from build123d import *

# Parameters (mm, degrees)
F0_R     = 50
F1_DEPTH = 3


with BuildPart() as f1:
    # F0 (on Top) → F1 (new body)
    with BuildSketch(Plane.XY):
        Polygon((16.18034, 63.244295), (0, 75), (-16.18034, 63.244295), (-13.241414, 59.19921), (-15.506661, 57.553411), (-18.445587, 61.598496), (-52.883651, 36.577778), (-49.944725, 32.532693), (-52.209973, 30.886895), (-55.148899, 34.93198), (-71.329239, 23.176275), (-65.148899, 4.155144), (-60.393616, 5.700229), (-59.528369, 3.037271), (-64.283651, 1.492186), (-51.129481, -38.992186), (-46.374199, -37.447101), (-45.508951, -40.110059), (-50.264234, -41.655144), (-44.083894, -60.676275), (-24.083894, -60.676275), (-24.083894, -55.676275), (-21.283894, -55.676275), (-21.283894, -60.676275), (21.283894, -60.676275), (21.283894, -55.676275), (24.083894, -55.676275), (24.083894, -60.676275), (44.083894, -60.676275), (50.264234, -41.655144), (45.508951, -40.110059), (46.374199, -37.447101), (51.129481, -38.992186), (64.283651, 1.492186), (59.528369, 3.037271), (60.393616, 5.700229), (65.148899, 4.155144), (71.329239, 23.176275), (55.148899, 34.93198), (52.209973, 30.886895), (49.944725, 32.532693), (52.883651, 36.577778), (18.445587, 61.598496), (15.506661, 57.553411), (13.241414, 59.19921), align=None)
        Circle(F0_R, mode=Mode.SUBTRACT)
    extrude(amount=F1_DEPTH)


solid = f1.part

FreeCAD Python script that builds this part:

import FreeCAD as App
import Part
import Sketcher

V = App.Vector
Q = App.Units.Quantity


def add_polygon(sketch, points):
    """Adds a closed chain of lines whose ends are joined by coincident constraints."""
    first, n = sketch.GeometryCount, len(points)
    for a, b in zip(points, points[1:] + points[:1]):
        sketch.addGeometry(Part.LineSegment(App.Vector(*a, 0), App.Vector(*b, 0)), False)
    for i in range(n):
        sketch.addConstraint(Sketcher.Constraint("Coincident", first + i, 2, first + (i + 1) % n, 1))

doc = App.newDocument("Part")
body = doc.addObject("PartDesign::Body", "Body")

sketch1 = body.newObject("Sketcher::SketchObject", "Sketch")
sketch1.AttachmentSupport = (doc.getObject("XY_Plane"), [""])
sketch1.MapMode = "FlatFace"
add_polygon(sketch1, [(16.18034, 63.244295), (0, 75), (-16.18034, 63.244295), (-13.241414, 59.19921), (-15.506661, 57.553411), (-18.445587, 61.598496), (-52.883651, 36.577778), (-49.944725, 32.532693), (-52.209973, 30.886895), (-55.148899, 34.93198), (-71.329239, 23.176275), (-65.148899, 4.155144), (-60.393616, 5.700229), (-59.528369, 3.037271), (-64.283651, 1.492186), (-51.129481, -38.992186), (-46.374199, -37.447101), (-45.508951, -40.110059), (-50.264234, -41.655144), (-44.083894, -60.676275), (-24.083894, -60.676275), (-24.083894, -55.676275), (-21.283894, -55.676275), (-21.283894, -60.676275), (21.283894, -60.676275), (21.283894, -55.676275), (24.083894, -55.676275), (24.083894, -60.676275), (44.083894, -60.676275), (50.264234, -41.655144), (45.508951, -40.110059), (46.374199, -37.447101), (51.129481, -38.992186), (64.283651, 1.492186), (59.528369, 3.037271), (60.393616, 5.700229), (65.148899, 4.155144), (71.329239, 23.176275), (55.148899, 34.93198), (52.209973, 30.886895), (49.944725, 32.532693), (52.883651, 36.577778), (18.445587, 61.598496), (15.506661, 57.553411), (13.241414, 59.19921)])
sketch1.addGeometry(Part.Circle(V(0, 0, 0), V(0, 0, 1), 50), False)
sketch1.addConstraint([
    Sketcher.Constraint("Horizontal", 19),
    Sketcher.Constraint("Vertical", 20),
    Sketcher.Constraint("Horizontal", 21),
    Sketcher.Constraint("Vertical", 22),
    Sketcher.Constraint("Horizontal", 23),
    Sketcher.Constraint("Vertical", 24),
    Sketcher.Constraint("Horizontal", 25),
    Sketcher.Constraint("Vertical", 26),
    Sketcher.Constraint("Horizontal", 27),
    Sketcher.Constraint("Coincident", 45, 3, -1, 1),
    Sketcher.Constraint("Symmetric", 21, 2, 24, 2, -2),
    Sketcher.Constraint("Symmetric", 19, 2, 26, 2, -2),
    Sketcher.Constraint("Symmetric", 17, 2, 28, 2, -2),
    Sketcher.Constraint("Symmetric", 16, 2, 29, 2, -2),
    Sketcher.Constraint("Symmetric", 15, 2, 30, 2, -2),
    Sketcher.Constraint("Symmetric", 14, 2, 31, 2, -2),
    Sketcher.Constraint("Symmetric", 13, 2, 32, 2, -2),
    Sketcher.Constraint("Symmetric", 12, 2, 33, 2, -2),
    Sketcher.Constraint("Symmetric", 11, 2, 34, 2, -2),
    Sketcher.Constraint("Symmetric", 10, 2, 35, 2, -2),
    Sketcher.Constraint("Symmetric", 9, 2, 36, 2, -2),
    Sketcher.Constraint("Symmetric", 8, 2, 37, 2, -2),
    Sketcher.Constraint("Symmetric", 7, 2, 38, 2, -2),
    Sketcher.Constraint("Symmetric", 6, 2, 39, 2, -2),
    Sketcher.Constraint("Symmetric", 5, 2, 40, 2, -2),
    Sketcher.Constraint("Symmetric", 4, 2, 41, 2, -2),
    Sketcher.Constraint("Symmetric", 3, 2, 42, 2, -2),
    Sketcher.Constraint("Symmetric", 2, 2, 43, 2, -2),
    Sketcher.Constraint("Symmetric", 1, 2, 44, 2, -2),
    Sketcher.Constraint("PointOnObject", 0, 2, -2),
    Sketcher.Constraint("Perpendicular", 1, 2),
    Sketcher.Constraint("Perpendicular", 2, 3),
    Sketcher.Constraint("Perpendicular", 3, 4),
    Sketcher.Constraint("Perpendicular", 4, 5),
    Sketcher.Constraint("Perpendicular", 5, 6),
    Sketcher.Constraint("Perpendicular", 6, 7),
    Sketcher.Constraint("Perpendicular", 7, 8),
    Sketcher.Constraint("Perpendicular", 8, 9),
    Sketcher.Constraint("Perpendicular", 10, 11),
    Sketcher.Constraint("Perpendicular", 11, 12),
    Sketcher.Constraint("Perpendicular", 12, 13),
    Sketcher.Constraint("Perpendicular", 13, 14),
    Sketcher.Constraint("Perpendicular", 14, 15),
    Sketcher.Constraint("Perpendicular", 15, 16),
    Sketcher.Constraint("Perpendicular", 16, 17),
    Sketcher.Constraint("Perpendicular", 17, 18),
    Sketcher.Constraint("Perpendicular", 28, 29),
    Sketcher.Constraint("Horizontal", 19, 2, 22, 2),
    Sketcher.Constraint("Equal", 2, 4),
    Sketcher.Constraint("Equal", 4, 6),
    Sketcher.Constraint("Equal", 3, 7),
    Sketcher.Constraint("Equal", 6, 8),
    Sketcher.Constraint("Equal", 1, 9),
    Sketcher.Constraint("Equal", 9, 10),
    Sketcher.Constraint("Equal", 8, 11),
    Sketcher.Constraint("Equal", 7, 12),
    Sketcher.Constraint("Equal", 11, 13),
    Sketcher.Constraint("Equal", 5, 14),
    Sketcher.Constraint("Equal", 13, 15),
    Sketcher.Constraint("Equal", 12, 16),
    Sketcher.Constraint("Equal", 15, 17),
    Sketcher.Constraint("Equal", 10, 18),
    Sketcher.Constraint("Diameter", 45, Q("100 mm")),
    Sketcher.Constraint("DistanceX", 19, 1, 19, 2, Q("20 mm")),
    Sketcher.Constraint("DistanceY", 20, 1, 20, 2, Q("5 mm")),
    Sketcher.Constraint("Angle", 0, Q("144 deg")),
    Sketcher.Constraint("Angle", 10, Q("-72 deg")),
    Sketcher.Constraint("Distance", 0, Q("20 mm")),
    Sketcher.Constraint("Distance", 2, Q("5 mm")),
    Sketcher.Constraint("DistanceX", 21, 1, 21, 2, Q("2.8 mm")),
    Sketcher.Constraint("DistanceY", -1, 1, 0, 2, Q("75 mm")),
    Sketcher.Constraint("Distance", 3, Q("2.8 mm")),
    Sketcher.Constraint("DistanceX", 8, 2, -1, 1, Q("55.148899 mm")),
])
pad1 = body.newObject("PartDesign::Pad", "Pad")
pad1.Profile = sketch1
pad1.Length = 3

doc.recompute()
